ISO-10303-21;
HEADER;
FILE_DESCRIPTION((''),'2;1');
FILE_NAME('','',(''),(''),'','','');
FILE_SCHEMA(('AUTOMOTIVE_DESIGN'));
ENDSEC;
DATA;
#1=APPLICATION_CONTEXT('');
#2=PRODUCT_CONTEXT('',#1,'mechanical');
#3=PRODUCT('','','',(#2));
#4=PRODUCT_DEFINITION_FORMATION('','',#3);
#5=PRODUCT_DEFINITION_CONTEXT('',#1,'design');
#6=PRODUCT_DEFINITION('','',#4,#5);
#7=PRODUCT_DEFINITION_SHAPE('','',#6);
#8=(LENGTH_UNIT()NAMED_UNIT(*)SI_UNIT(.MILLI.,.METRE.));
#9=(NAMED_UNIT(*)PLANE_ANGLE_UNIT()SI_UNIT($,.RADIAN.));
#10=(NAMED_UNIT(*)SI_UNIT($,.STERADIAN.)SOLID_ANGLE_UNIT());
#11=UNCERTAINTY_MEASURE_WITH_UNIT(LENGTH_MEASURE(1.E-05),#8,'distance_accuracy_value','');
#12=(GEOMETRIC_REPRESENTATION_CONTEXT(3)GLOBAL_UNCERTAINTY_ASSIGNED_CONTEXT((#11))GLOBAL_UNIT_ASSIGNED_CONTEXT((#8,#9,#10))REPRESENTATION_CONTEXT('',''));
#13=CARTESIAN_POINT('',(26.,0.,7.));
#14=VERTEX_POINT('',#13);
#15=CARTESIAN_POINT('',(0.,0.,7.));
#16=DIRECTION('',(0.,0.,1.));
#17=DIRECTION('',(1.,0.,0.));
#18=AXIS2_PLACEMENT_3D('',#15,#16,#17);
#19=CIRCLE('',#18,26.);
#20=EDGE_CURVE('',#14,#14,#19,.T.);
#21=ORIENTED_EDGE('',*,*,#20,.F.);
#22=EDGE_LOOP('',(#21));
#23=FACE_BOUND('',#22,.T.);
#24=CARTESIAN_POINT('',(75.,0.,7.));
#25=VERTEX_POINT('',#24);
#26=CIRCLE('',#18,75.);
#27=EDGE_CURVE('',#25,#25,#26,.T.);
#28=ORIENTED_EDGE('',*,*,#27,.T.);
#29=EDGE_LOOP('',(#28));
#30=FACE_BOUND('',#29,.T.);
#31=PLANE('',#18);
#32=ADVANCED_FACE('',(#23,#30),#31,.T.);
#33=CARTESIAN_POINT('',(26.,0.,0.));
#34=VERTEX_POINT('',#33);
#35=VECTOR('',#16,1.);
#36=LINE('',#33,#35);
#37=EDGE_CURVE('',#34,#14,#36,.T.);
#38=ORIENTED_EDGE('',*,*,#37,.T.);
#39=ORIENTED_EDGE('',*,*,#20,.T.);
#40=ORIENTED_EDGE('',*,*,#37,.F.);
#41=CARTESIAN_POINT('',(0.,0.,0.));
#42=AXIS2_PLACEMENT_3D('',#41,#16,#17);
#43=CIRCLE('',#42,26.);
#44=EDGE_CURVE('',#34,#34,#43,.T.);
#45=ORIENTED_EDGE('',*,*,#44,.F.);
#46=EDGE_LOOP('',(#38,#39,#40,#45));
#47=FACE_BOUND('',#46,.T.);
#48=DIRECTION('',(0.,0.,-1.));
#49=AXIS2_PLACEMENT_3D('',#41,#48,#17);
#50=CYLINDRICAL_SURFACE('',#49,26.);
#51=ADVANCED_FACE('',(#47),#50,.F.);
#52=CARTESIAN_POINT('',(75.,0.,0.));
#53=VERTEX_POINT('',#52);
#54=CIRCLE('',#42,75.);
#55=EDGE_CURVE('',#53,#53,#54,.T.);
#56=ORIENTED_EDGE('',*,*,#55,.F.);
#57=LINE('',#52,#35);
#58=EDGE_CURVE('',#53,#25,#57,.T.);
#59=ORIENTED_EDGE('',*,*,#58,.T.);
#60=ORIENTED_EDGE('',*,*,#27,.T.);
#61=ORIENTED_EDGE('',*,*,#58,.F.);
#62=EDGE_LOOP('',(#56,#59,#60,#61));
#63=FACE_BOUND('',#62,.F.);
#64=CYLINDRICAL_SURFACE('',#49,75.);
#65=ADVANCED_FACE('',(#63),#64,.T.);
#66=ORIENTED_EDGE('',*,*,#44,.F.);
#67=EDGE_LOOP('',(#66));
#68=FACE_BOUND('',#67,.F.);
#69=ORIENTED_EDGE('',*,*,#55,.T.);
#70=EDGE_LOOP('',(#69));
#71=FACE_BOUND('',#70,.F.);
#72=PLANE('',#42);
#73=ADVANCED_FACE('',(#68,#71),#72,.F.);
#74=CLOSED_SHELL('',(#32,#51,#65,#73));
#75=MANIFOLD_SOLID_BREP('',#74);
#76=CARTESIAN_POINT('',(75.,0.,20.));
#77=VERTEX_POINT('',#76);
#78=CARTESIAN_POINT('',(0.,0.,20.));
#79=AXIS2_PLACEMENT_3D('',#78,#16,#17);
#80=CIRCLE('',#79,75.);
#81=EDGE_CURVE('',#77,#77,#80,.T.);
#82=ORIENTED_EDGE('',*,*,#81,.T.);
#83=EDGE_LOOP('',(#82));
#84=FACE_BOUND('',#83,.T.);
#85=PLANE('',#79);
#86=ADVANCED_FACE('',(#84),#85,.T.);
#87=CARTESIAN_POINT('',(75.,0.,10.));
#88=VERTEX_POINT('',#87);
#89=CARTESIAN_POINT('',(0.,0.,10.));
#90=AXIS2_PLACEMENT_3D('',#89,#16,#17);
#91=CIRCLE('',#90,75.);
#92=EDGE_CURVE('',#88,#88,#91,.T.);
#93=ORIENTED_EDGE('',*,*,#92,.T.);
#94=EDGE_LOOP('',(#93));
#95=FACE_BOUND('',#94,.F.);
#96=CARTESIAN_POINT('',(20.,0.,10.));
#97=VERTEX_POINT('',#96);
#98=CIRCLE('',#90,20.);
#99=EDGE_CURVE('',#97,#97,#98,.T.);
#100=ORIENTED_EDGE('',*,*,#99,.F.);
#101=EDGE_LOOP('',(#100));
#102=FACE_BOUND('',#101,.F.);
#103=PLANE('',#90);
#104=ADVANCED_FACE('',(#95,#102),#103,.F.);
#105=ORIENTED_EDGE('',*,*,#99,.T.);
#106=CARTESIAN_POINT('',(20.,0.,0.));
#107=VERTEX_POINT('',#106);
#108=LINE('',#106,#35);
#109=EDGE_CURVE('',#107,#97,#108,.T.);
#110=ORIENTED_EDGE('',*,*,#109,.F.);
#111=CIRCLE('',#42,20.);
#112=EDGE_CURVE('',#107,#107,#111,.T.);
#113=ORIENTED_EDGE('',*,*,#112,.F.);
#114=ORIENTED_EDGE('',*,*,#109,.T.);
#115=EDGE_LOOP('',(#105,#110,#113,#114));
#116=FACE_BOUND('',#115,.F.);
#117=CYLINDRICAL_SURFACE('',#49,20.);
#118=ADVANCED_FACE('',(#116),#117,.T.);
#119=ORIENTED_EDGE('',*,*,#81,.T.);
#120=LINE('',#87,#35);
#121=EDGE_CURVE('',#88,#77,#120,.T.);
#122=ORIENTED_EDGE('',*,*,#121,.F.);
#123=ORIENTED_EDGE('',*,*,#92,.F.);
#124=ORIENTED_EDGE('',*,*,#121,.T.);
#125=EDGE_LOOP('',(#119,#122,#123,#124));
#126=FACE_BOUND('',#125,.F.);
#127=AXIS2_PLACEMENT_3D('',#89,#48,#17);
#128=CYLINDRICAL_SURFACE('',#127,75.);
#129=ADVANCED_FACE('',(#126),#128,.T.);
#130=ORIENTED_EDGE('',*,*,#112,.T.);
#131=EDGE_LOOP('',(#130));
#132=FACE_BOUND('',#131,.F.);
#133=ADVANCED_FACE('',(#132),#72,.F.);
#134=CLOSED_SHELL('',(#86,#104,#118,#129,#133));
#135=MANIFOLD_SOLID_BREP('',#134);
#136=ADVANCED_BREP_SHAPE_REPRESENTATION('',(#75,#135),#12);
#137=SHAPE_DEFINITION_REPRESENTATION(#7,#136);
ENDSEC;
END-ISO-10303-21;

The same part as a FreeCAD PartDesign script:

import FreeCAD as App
import Part
import Sketcher
from FreeCAD import Vector
Q = App.Units.Quantity

doc = App.newDocument("Part")
body = doc.addObject("PartDesign::Body", "Body")

# Sketch on XY plane
sketch1 = body.newObject("Sketcher::SketchObject", "Sketch")
sketch1.AttachmentSupport = (doc.getObject("XY_Plane"), [""])
sketch1.MapMode = "FlatFace"
sketch1.addGeometry([
    Part.Circle(Vector(0, 0, 0), Vector(0, 0, 1), 75),
    Part.Circle(Vector(0, 0, 0), Vector(0, 0, 1), 26),
], False)
sketch1.addConstraint([
    Sketcher.Constraint("Coincident", 0, 3, -1, 1),
    Sketcher.Constraint("Coincident", 1, 3, -1, 1),
    Sketcher.Constraint("Diameter", 0, Q("150 mm")),
    Sketcher.Constraint("Diameter", 1, Q("52 mm")),
])
pad1 = body.newObject("PartDesign::Pad", "Pad")
pad1.Profile = sketch1
pad1.Length = 7
body2 = doc.addObject("PartDesign::Body", "Body001")

# Sketch on XY plane
sketch2 = body2.newObject("Sketcher::SketchObject", "Sketch001")
sketch2.AttachmentSupport = (doc.getObject("XY_Plane001"), [""])
sketch2.MapMode = "FlatFace"
sketch2.addGeometry(Part.Circle(Vector(0, 0, 0), Vector(0, 0, 1), 20), False)
sketch2.addConstraint([
    Sketcher.Constraint("Coincident", 0, 3, -1, 1),
    Sketcher.Constraint("Diameter", 0, Q("40 mm")),
])
pad2 = body2.newObject("PartDesign::Pad", "Pad001")
pad2.Profile = sketch2
pad2.Length = 10

# Sketch on XY plane
sketch3 = body2.newObject("Sketcher::SketchObject", "Sketch002")
sketch3.AttachmentSupport = (doc.getObject("XY_Plane001"), [""])
sketch3.MapMode = "FlatFace"
sketch3.AttachmentOffset = App.Placement(Vector(0, 0, 10), App.Rotation())
sketch3.addGeometry(Part.Circle(Vector(0, 0, 0), Vector(0, 0, 1), 75), False)
sketch3.addConstraint([
    Sketcher.Constraint("Coincident", 0, 3, -1, 1),
    Sketcher.Constraint("Diameter", 0, Q("150 mm")),
])
pad3 = body2.newObject("PartDesign::Pad", "Pad002")
pad3.Profile = sketch3
pad3.Length = 10

doc.recompute()
